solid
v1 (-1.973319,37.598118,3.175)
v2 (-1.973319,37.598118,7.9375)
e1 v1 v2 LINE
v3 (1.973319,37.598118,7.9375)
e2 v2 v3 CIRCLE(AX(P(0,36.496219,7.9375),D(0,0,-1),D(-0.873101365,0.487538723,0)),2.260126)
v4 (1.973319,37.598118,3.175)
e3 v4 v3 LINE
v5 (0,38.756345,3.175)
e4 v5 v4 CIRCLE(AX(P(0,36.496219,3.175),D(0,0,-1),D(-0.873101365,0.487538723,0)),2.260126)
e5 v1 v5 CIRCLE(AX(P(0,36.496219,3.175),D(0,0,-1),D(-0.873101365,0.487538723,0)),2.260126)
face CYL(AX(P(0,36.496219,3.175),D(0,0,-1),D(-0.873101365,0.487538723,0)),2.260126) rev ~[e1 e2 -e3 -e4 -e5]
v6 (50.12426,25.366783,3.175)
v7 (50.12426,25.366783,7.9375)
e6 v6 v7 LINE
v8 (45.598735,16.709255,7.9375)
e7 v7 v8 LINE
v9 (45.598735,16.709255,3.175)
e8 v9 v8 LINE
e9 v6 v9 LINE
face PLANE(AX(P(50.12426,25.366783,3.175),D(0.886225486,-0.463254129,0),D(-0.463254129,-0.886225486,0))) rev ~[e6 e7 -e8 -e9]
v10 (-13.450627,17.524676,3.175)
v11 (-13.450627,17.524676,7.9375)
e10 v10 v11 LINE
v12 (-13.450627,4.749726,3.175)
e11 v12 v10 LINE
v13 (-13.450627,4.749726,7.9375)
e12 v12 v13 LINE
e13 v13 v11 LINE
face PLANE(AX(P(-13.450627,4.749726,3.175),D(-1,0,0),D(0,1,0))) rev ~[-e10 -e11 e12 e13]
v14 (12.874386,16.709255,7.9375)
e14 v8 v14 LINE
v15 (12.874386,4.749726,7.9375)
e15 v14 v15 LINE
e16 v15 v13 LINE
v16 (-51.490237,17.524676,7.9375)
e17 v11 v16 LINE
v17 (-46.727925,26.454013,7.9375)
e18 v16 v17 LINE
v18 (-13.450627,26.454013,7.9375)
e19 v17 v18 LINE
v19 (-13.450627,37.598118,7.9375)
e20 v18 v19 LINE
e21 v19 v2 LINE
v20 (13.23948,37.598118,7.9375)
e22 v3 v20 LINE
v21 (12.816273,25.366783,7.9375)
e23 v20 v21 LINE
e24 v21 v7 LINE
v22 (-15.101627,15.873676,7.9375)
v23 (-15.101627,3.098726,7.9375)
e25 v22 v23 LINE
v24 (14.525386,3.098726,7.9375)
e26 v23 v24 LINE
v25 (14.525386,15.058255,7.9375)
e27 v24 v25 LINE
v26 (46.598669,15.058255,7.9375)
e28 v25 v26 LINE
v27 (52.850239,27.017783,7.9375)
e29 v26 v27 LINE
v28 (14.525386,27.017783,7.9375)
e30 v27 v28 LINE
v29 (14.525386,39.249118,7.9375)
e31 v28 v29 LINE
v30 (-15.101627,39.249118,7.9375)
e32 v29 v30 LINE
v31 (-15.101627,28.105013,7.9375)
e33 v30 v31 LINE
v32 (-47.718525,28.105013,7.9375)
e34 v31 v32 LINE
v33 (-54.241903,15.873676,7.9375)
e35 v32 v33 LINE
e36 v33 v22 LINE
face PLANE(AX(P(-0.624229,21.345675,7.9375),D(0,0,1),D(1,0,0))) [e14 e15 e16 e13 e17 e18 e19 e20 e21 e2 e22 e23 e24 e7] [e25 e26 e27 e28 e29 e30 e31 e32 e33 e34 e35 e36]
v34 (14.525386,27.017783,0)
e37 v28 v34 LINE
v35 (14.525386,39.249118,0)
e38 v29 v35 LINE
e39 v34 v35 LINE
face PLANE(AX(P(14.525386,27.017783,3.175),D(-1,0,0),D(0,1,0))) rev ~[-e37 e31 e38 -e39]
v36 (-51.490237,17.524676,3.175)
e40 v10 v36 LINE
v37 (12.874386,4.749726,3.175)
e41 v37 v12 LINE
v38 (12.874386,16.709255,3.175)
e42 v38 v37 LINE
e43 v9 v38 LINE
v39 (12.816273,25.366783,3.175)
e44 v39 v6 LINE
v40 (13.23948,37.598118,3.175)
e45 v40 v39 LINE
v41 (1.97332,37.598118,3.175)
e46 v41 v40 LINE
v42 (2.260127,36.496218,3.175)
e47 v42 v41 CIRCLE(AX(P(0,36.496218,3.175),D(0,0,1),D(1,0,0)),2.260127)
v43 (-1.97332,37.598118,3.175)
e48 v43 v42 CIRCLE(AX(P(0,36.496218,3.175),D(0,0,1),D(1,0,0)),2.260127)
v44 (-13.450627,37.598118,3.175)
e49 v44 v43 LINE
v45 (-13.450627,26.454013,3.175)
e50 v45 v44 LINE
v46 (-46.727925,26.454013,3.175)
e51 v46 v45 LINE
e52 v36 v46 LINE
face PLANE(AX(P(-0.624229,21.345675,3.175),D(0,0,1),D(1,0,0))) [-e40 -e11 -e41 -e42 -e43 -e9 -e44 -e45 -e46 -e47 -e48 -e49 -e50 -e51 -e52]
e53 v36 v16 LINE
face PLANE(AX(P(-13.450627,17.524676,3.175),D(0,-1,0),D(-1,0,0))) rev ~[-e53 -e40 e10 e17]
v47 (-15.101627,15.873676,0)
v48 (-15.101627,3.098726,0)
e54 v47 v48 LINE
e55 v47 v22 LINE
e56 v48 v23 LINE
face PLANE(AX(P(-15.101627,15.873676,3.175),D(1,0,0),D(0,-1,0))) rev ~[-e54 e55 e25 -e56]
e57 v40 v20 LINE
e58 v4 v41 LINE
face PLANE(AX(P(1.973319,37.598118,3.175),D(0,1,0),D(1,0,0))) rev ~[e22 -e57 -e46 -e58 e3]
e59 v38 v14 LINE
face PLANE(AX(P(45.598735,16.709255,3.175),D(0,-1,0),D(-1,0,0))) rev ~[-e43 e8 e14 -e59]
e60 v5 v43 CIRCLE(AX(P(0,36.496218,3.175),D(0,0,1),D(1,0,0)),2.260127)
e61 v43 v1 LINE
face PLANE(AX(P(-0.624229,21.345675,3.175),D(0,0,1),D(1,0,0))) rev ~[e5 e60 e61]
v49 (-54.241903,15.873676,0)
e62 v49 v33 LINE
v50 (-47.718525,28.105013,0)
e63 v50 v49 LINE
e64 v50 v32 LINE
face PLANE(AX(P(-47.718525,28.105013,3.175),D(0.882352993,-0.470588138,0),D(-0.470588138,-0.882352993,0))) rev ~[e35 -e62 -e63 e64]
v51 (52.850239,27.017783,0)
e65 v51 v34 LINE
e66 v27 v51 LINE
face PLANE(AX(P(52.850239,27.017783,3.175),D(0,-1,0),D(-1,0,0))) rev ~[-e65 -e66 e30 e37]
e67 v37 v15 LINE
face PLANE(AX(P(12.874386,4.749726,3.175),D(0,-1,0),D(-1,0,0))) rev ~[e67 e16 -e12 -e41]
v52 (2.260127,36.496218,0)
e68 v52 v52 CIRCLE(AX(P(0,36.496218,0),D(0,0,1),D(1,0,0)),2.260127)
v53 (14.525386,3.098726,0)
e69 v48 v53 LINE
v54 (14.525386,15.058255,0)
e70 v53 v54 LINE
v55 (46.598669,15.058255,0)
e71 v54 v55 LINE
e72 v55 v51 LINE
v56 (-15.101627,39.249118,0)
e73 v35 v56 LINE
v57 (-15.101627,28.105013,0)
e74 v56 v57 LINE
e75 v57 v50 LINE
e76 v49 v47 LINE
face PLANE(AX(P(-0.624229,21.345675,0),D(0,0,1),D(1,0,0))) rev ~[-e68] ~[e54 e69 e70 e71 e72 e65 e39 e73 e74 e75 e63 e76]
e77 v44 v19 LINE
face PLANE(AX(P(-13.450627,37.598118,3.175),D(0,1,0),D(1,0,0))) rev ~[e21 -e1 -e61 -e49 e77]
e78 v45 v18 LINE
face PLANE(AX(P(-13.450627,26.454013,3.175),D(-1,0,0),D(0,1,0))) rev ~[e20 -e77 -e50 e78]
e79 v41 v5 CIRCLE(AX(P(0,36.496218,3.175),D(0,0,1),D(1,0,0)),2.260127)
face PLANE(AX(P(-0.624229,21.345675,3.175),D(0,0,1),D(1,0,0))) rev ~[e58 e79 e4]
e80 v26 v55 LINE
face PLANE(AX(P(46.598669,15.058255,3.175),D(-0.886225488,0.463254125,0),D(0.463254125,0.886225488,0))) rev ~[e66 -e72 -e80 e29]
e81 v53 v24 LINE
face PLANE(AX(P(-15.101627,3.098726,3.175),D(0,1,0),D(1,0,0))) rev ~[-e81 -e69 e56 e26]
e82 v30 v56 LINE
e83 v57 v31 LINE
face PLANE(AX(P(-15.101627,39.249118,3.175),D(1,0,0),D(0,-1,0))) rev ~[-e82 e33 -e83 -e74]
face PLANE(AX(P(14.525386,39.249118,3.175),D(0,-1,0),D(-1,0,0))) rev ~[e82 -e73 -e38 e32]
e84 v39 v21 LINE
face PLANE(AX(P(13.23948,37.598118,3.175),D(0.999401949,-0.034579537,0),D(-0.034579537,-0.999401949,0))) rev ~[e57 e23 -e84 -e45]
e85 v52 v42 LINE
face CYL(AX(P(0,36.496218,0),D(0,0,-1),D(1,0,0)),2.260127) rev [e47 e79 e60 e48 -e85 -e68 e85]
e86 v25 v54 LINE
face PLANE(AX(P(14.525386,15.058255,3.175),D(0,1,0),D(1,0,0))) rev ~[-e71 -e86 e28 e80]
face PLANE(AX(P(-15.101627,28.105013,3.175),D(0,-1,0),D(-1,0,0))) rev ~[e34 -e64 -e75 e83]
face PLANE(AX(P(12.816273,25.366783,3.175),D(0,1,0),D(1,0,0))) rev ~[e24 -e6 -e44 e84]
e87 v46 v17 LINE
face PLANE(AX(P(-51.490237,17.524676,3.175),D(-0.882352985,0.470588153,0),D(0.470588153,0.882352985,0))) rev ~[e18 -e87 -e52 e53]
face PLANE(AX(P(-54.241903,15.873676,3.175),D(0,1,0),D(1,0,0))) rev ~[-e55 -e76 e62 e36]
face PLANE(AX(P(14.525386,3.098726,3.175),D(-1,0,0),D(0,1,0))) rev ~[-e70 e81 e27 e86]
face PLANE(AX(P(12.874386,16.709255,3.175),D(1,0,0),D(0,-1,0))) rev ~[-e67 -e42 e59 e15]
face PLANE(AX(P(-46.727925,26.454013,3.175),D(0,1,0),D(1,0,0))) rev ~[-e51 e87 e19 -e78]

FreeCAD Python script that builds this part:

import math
import FreeCAD as App
import Part
import Sketcher
Q = App.Units.Quantity


def add_polygon(sketch, points):
    """Adds a closed chain of lines whose ends are joined by coincident constraints."""
    first, n = sketch.GeometryCount, len(points)
    for a, b in zip(points, points[1:] + points[:1]):
        sketch.addGeometry(Part.LineSegment(App.Vector(*a, 0), App.Vector(*b, 0)), False)
    for i in range(n):
        sketch.addConstraint(Sketcher.Constraint("Coincident", first + i, 2, first + (i + 1) % n, 1))

doc = App.newDocument("Part")
body = doc.addObject("PartDesign::Body", "Body")

# Sketch on XY plane
sketch1 = body.newObject("Sketcher::SketchObject", "Sketch")
sketch1.AttachmentSupport = (doc.getObject("XY_Plane"), [""])
sketch1.MapMode = "FlatFace"
add_polygon(sketch1, [(14.5, 39.2), (-15.1, 39.2), (-15.1, 28.1), (-47.7, 28.1), (-54.2, 15.9), (-15.1, 15.9), (-15.1, 3.1), (14.5, 3.1), (14.5, 15.1), (46.6, 15.1), (52.9, 27), (14.5, 27)])  # lines 0-11
sketch1.addGeometry(Part.Circle(App.Vector(0, 36.5, 0), App.Vector(0, 0, 1), 2.3), False)  # 12
sketch1.addConstraint(Sketcher.Constraint("Horizontal", 0))
sketch1.addConstraint(Sketcher.Constraint("Vertical", 1))
sketch1.addConstraint(Sketcher.Constraint("Horizontal", 2))
sketch1.addConstraint(Sketcher.Constraint("Horizontal", 4))
sketch1.addConstraint(Sketcher.Constraint("Vertical", 5))
sketch1.addConstraint(Sketcher.Constraint("Horizontal", 6))
sketch1.addConstraint(Sketcher.Constraint("Vertical", 7))
sketch1.addConstraint(Sketcher.Constraint("Horizontal", 8))
sketch1.addConstraint(Sketcher.Constraint("Horizontal", 10))
sketch1.addConstraint(Sketcher.Constraint("Vertical", 11))
sketch1.addConstraint(Sketcher.Constraint("PointOnObject", 12, 3, -2))
sketch1.addConstraint(Sketcher.Constraint("Vertical", 1, 2, 4, 2))
sketch1.addConstraint(Sketcher.Constraint("Vertical", 7, 2, 10, 2))
sketch1.addConstraint(Sketcher.Constraint("Diameter", 12, 4.520254))
sketch1.addConstraint(Sketcher.Constraint("DistanceY", 5, 2, 5, 1, 12.77495))
sketch1.addConstraint(Sketcher.Constraint("DistanceY", 7, 1, 7, 2, 11.959529))
sketch1.addConstraint(Sketcher.Constraint("DistanceY", 12, 3, 0, 2, 2.7529))
sketch1.addConstraint(Sketcher.Constraint("Distance", 3, 13.862181))
sketch1.addConstraint(Sketcher.Constraint("DistanceX", 0, 2, 0, 1, 29.627013))
sketch1.addConstraint(Sketcher.Constraint("DistanceX", 2, 2, 2, 1, 32.616898))
sketch1.addConstraint(Sketcher.Constraint("DistanceX", 4, 1, 4, 2, 39.140276))
sketch1.addConstraint(Sketcher.Constraint("DistanceX", 8, 1, 8, 2, 32.073283))
sketch1.addConstraint(Sketcher.Constraint("DistanceX", 10, 2, 10, 1, 38.324853))
sketch1.addConstraint(Sketcher.Constraint("DistanceY", 1, 2, 1, 1, 11.144105))
sketch1.addConstraint(Sketcher.Constraint("DistanceY", 11, 1, 11, 2, 12.231335))
sketch1.addConstraint(Sketcher.Constraint("DistanceY", -1, 1, 0, 2, 39.249118))
sketch1.addConstraint(Sketcher.Constraint("DistanceX", -1, 1, 8, 2, 46.598669))
pad1 = body.newObject("PartDesign::Pad", "Pad")
pad1.Profile = sketch1
pad1.Length = Q("0.125 in")

# Sketch on XY plane
sketch2 = body.newObject("Sketcher::SketchObject", "Sketch001")
sketch2.AttachmentSupport = (doc.getObject("XY_Plane"), [""])
sketch2.MapMode = "FlatFace"
sketch2.AttachmentOffset = App.Placement(App.Vector(0, 0, 0.125 * 25.4), App.Rotation())
add_polygon(sketch2, [(-15.1, 39.2), (-15.1, 28.1), (-47.7, 28.1), (-54.2, 15.9), (-15.1, 15.9), (-15.1, 3.1), (14.5, 3.1), (14.5, 15.1), (46.6, 15.1), (52.9, 27), (14.5, 27), (14.5, 39.2)])  # lines 0-11
sketch2.addGeometry(Part.LineSegment(App.Vector(-51.5, 17.5, 0), App.Vector(-46.7, 26.5, 0)), False)  # 12
sketch2.addGeometry(Part.LineSegment(App.Vector(-46.7, 26.5, 0), App.Vector(-13.5, 26.5, 0)), False)  # 13
sketch2.addGeometry(Part.LineSegment(App.Vector(-13.5, 26.5, 0), App.Vector(-13.5, 37.6, 0)), False)  # 14
sketch2.addGeometry(Part.LineSegment(App.Vector(-13.5, 37.6, 0), App.Vector(-2, 37.6, 0)), False)  # 15
sketch2.addGeometry(Part.ArcOfCircle(Part.Circle(App.Vector(0, 36.5, 0), App.Vector(0, 0, 1), 2.3), math.radians(29), math.radians(151)), False)  # 16
sketch2.addGeometry(Part.LineSegment(App.Vector(2, 37.6, 0), App.Vector(13.2, 37.6, 0)), False)  # 17
sketch2.addGeometry(Part.LineSegment(App.Vector(13.2, 37.6, 0), App.Vector(12.8, 25.4, 0)), False)  # 18
sketch2.addGeometry(Part.LineSegment(App.Vector(12.8, 25.4, 0), App.Vector(50.1, 25.4, 0)), False)  # 19
sketch2.addGeometry(Part.LineSegment(App.Vector(50.1, 25.4, 0), App.Vector(45.6, 16.7, 0)), False)  # 20
sketch2.addGeometry(Part.LineSegment(App.Vector(45.6, 16.7, 0), App.Vector(12.9, 16.7, 0)), False)  # 21
sketch2.addGeometry(Part.LineSegment(App.Vector(12.9, 16.7, 0), App.Vector(12.9, 4.7, 0)), False)  # 22
sketch2.addGeometry(Part.LineSegment(App.Vector(12.9, 4.7, 0), App.Vector(-13.5, 4.7, 0)), False)  # 23
sketch2.addGeometry(Part.LineSegment(App.Vector(-13.5, 4.7, 0), App.Vector(-13.5, 17.5, 0)), False)  # 24
sketch2.addGeometry(Part.LineSegment(App.Vector(-13.5, 17.5, 0), App.Vector(-51.5, 17.5, 0)), False)  # 25
sketch2.addConstraint(Sketcher.Constraint("Coincident", 12, 2, 13, 1))
sketch2.addConstraint(Sketcher.Constraint("Coincident", 13, 2, 14, 1))
sketch2.addConstraint(Sketcher.Constraint("Coincident", 14, 2, 15, 1))
sketch2.addConstraint(Sketcher.Constraint("Coincident", 15, 2, 16, 2))
sketch2.addConstraint(Sketcher.Constraint("Coincident", 16, 1, 17, 1))
sketch2.addConstraint(Sketcher.Constraint("Coincident", 17, 2, 18, 1))
sketch2.addConstraint(Sketcher.Constraint("Coincident", 18, 2, 19, 1))
sketch2.addConstraint(Sketcher.Constraint("Coincident", 19, 2, 20, 1))
sketch2.addConstraint(Sketcher.Constraint("Coincident", 20, 2, 21, 1))
sketch2.addConstraint(Sketcher.Constraint("Coincident", 21, 2, 22, 1))
sketch2.addConstraint(Sketcher.Constraint("Coincident", 22, 2, 23, 1))
sketch2.addConstraint(Sketcher.Constraint("Coincident", 23, 2, 24, 1))
sketch2.addConstraint(Sketcher.Constraint("Coincident", 24, 2, 25, 1))
sketch2.addConstraint(Sketcher.Constraint("Coincident", 25, 2, 12, 1))
sketch2.addConstraint(Sketcher.Constraint("Vertical", 0))
sketch2.addConstraint(Sketcher.Constraint("Horizontal", 1))
sketch2.addConstraint(Sketcher.Constraint("Horizontal", 3))
sketch2.addConstraint(Sketcher.Constraint("Vertical", 4))
sketch2.addConstraint(Sketcher.Constraint("Horizontal", 5))
sketch2.addConstraint(Sketcher.Constraint("Vertical", 6))
sketch2.addConstraint(Sketcher.Constraint("Horizontal", 7))
sketch2.addConstraint(Sketcher.Constraint("Horizontal", 9))
sketch2.addConstraint(Sketcher.Constraint("Vertical", 10))
sketch2.addConstraint(Sketcher.Constraint("Horizontal", 11))
sketch2.addConstraint(Sketcher.Constraint("Horizontal", 13))
sketch2.addConstraint(Sketcher.Constraint("Vertical", 14))
sketch2.addConstraint(Sketcher.Constraint("Horizontal", 15))
sketch2.addConstraint(Sketcher.Constraint("Horizontal", 17))
sketch2.addConstraint(Sketcher.Constraint("Horizontal", 19))
sketch2.addConstraint(Sketcher.Constraint("Horizontal", 21))
sketch2.addConstraint(Sketcher.Constraint("Vertical", 22))
sketch2.addConstraint(Sketcher.Constraint("Horizontal", 23))
sketch2.addConstraint(Sketcher.Constraint("Vertical", 24))
sketch2.addConstraint(Sketcher.Constraint("Horizontal", 25))
sketch2.addConstraint(Sketcher.Constraint("Symmetric", 15, 2, 16, 1, -2))
sketch2.addConstraint(Sketcher.Constraint("Parallel", 2, 12))
sketch2.addConstraint(Sketcher.Constraint("Parallel", 8, 20))
sketch2.addConstraint(Sketcher.Constraint("Vertical", 0, 2, 3, 2))
sketch2.addConstraint(Sketcher.Constraint("Vertical", 6, 2, 9, 2))
sketch2.addConstraint(Sketcher.Constraint("Vertical", 14, 2, 23, 2))
sketch2.addConstraint(Sketcher.Constraint("Equal", 0, 14))
sketch2.addConstraint(Sketcher.Constraint("Equal", 6, 22))
sketch2.addConstraint(Sketcher.Constraint("Equal", 4, 24))
sketch2.addConstraint(Sketcher.Constraint("DistanceX", 1, 2, 12, 2, Q("0.039 in")))
sketch2.addConstraint(Sketcher.Constraint("DistanceY", 12, 2, 1, 2, Q("0.065 in")))
sketch2.addConstraint(Sketcher.Constraint("DistanceX", 0, 2, 13, 2, Q("0.065 in")))
sketch2.addConstraint(Sketcher.Constraint("DistanceY", 18, 2, 9, 2, Q("0.065 in")))
sketch2.addConstraint(Sketcher.Constraint("DistanceY", 7, 2, 20, 2, Q("0.065 in")))
sketch2.addConstraint(Sketcher.Constraint("DistanceX", 21, 2, 6, 2, Q("0.065 in")))
sketch2.addConstraint(Sketcher.Constraint("DistanceX", 13, 1, 13, 2, 33.277298))
sketch2.addConstraint(Sketcher.Constraint("Radius", 16, 2.260126))
sketch2.addConstraint(Sketcher.Constraint("DistanceX", 15, 1, 15, 2, 11.477308))
sketch2.addConstraint(Sketcher.Constraint("DistanceX", 17, 1, 17, 2, 11.266161))
sketch2.addConstraint(Sketcher.Constraint("DistanceX", 21, 2, 21, 1, 32.724349))
sketch2.addConstraint(Sketcher.Constraint("DistanceX", 25, 2, 25, 1, 38.03961))
sketch2.addConstraint(Sketcher.Constraint("DistanceY", 4, 2, 4, 1, 12.77495))
sketch2.addConstraint(Sketcher.Constraint("DistanceY", 6, 1, 6, 2, 11.959529))
sketch2.addConstraint(Sketcher.Constraint("DistanceY", 16, 3, 10, 2, 2.752899))
sketch2.addConstraint(Sketcher.Constraint("Distance", 2, 13.862181))
sketch2.addConstraint(Sketcher.Constraint("Distance", 20, 9.76899))
sketch2.addConstraint(Sketcher.Constraint("DistanceX", 5, 1, 5, 2, 29.627013))
sketch2.addConstraint(Sketcher.Constraint("DistanceX", 7, 1, 7, 2, 32.073283))
sketch2.addConstraint(Sketcher.Constraint("DistanceX", 9, 2, 9, 1, 38.324853))
sketch2.addConstraint(Sketcher.Constraint("DistanceX", 19, 1, 19, 2, 37.307987))
sketch2.addConstraint(Sketcher.Constraint("DistanceY", 0, 2, 0, 1, 11.144105))
sketch2.addConstraint(Sketcher.Constraint("DistanceY", -1, 1, 16, 3, 36.496219))
pad2 = body.newObject("PartDesign::Pad", "Pad001")
pad2.Profile = sketch2
pad2.Length = Q("0.1875 in")

doc.recompute()
